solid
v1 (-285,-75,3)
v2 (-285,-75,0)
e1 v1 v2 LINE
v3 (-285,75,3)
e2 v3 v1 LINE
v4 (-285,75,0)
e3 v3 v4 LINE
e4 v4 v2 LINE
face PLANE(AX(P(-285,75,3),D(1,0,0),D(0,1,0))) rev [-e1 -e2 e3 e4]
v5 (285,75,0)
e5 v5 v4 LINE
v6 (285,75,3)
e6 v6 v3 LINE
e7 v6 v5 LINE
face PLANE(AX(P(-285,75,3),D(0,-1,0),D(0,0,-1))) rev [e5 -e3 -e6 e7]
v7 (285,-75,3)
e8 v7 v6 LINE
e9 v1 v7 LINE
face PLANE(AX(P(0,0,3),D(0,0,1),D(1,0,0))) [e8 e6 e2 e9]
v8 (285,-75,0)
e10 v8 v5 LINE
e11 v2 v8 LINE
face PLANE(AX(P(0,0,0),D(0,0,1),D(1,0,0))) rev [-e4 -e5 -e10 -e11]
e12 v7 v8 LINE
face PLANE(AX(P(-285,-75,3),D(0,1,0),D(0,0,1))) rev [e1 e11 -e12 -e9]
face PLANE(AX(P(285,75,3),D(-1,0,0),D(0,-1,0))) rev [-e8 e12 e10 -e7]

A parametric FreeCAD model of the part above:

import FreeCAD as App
import Part
import Sketcher
from FreeCAD import Vector

doc = App.newDocument("Part")
params = doc.addObject("Spreadsheet::Sheet", "Params")
for row, (alias, value) in enumerate([
    ("sketch1_width", "570 mm"),
    ("sketch1_height", "150 mm"),
    ("pad1_length", "3 mm"),
], start=1):
    params.set(f"A{row}", alias)
    params.set(f"B{row}", "=" + value)
    params.setAlias(f"B{row}", alias)

body = doc.addObject("PartDesign::Body", "Body")

# Sketch on XY plane
sketch1 = body.newObject("Sketcher::SketchObject", "Sketch")
sketch1.AttachmentSupport = (doc.getObject("XY_Plane"), [""])
sketch1.MapMode = "FlatFace"
sketch1.addGeometry(Part.LineSegment(Vector(-285, 75, 0), Vector(-285, -75, 0)), False)
sketch1.addGeometry(Part.LineSegment(Vector(-285, -75, 0), Vector(285, -75, 0)), False)
sketch1.addGeometry(Part.LineSegment(Vector(285, -75, 0), Vector(285, 75, 0)), False)
sketch1.addGeometry(Part.LineSegment(Vector(285, 75, 0), Vector(-285, 75, 0)), False)
sketch1.addConstraint(Sketcher.Constraint("Coincident", 0, 2, 1, 1))
sketch1.addConstraint(Sketcher.Constraint("Coincident", 1, 2, 2, 1))
sketch1.addConstraint(Sketcher.Constraint("Coincident", 2, 2, 3, 1))
sketch1.addConstraint(Sketcher.Constraint("Coincident", 3, 2, 0, 1))
sketch1.addConstraint(Sketcher.Constraint("Vertical", 0))
sketch1.addConstraint(Sketcher.Constraint("Horizontal", 1))
sketch1.addConstraint(Sketcher.Constraint("Vertical", 2))
sketch1.addConstraint(Sketcher.Constraint("Horizontal", 3))
sketch1.addConstraint(Sketcher.Constraint("Symmetric", 0, 2, 2, 2, -1, 1))
sketch1.addConstraint(Sketcher.Constraint("DistanceX", 1, 1, 1, 2, 570.0))
sketch1.addConstraint(Sketcher.Constraint("DistanceY", 0, 2, 0, 1, 150.0))
sketch1.setExpression("Constraints[9]", "Params.sketch1_width")
sketch1.setExpression("Constraints[10]", "Params.sketch1_height")
pad1 = body.newObject("PartDesign::Pad", "Pad")
pad1.Profile = sketch1
pad1.setExpression("Length", "Params.pad1_length")

doc.recompute()
